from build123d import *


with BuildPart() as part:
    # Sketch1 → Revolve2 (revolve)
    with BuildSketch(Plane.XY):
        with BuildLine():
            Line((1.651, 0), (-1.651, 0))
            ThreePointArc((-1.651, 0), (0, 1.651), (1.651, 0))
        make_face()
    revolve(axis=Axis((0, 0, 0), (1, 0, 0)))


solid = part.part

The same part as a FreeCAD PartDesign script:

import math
import FreeCAD as App
import Part
import Sketcher
from FreeCAD import Vector
Q = App.Units.Quantity

doc = App.newDocument("Part")
body = doc.addObject("PartDesign::Body", "Body")

# Sketch on XY plane
sketch1 = doc.addObject("Sketcher::SketchObject", "Sketch")
body.addObject(sketch1)
sketch1.AttachmentSupport = (doc.XY_Plane, [""])
sketch1.MapMode = "FlatFace"
sketch1.addGeometry(Part.LineSegment(Vector(-1.7, 0, 0), Vector(1.7, 0, 0)), False)
sketch1.addGeometry(Part.ArcOfCircle(Part.Circle(Vector(0, 0, 0), Vector(0, 0, 1), 1.7), math.radians(0), math.radians(180)), False)
sketch1.addConstraint(Sketcher.Constraint("Coincident", 0, 1, 1, 2))
sketch1.addConstraint(Sketcher.Constraint("Coincident", 1, 1, 0, 2))
sketch1.addConstraint(Sketcher.Constraint("Horizontal", 0))
sketch1.addConstraint(Sketcher.Constraint("Coincident", 1, 3, -1, 1))
sketch1.addConstraint(Sketcher.Constraint("PointOnObject", 0, 1, -1))
sketch1.addConstraint(Sketcher.Constraint("Radius", 1, Q("0.065 in")))
revolution = doc.addObject("PartDesign::Revolution", "Revolution")
body.addObject(revolution)
revolution.Profile = sketch1
revolution.ReferenceAxis = (sketch1, ["H_Axis"])
revolution.Angle = 360

doc.recompute()
